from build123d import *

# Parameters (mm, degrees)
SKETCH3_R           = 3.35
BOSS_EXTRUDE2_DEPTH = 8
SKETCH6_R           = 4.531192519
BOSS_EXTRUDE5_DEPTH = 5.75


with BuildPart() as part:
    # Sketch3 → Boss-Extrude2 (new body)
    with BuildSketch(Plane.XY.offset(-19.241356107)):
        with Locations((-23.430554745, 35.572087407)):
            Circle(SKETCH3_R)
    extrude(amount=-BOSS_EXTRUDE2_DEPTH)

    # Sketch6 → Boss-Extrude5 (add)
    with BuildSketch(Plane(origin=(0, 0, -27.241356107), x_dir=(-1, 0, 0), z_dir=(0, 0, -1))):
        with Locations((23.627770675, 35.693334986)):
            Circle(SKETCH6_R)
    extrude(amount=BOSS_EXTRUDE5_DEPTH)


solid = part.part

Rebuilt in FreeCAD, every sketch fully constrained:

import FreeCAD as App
import Part
import Sketcher

V = App.Vector
Q = App.Units.Quantity

doc = App.newDocument("Part")
body = doc.addObject("PartDesign::Body", "Body")

sketch1 = body.newObject("Sketcher::SketchObject", "Sketch")
sketch1.AttachmentSupport = (doc.getObject("XY_Plane"), [""])
sketch1.MapMode = "FlatFace"
sketch1.AttachmentOffset = App.Placement(V(0, 0, -19.241356), App.Rotation())
sketch1.addGeometry(Part.Circle(V(-23.4, 35.6, 0), V(0, 0, 1), 3.4), False)
sketch1.addConstraint([
    Sketcher.Constraint("Diameter", 0, Q("6.7 mm")),
    Sketcher.Constraint("DistanceX", 0, 3, -1, 1, Q("23.430555 mm")),
    Sketcher.Constraint("DistanceY", -1, 1, 0, 3, Q("35.572087 mm")),
])
pad1 = body.newObject("PartDesign::Pad", "Pad")
pad1.Profile = sketch1
pad1.Length = 8
pad1.Reversed = True

sketch2 = body.newObject("Sketcher::SketchObject", "Sketch001")
sketch2.AttachmentSupport = (doc.getObject("XY_Plane"), [""])
sketch2.MapMode = "FlatFace"
sketch2.AttachmentOffset = App.Placement(V(0, 0, -27.241356), App.Rotation())
sketch2.addGeometry(Part.Circle(V(-23.6, 35.7, 0), V(0, 0, 1), 4.5), False)
sketch2.addConstraint([
    Sketcher.Constraint("Diameter", 0, Q("9.062385 mm")),
    Sketcher.Constraint("DistanceX", 0, 3, -1, 1, Q("23.627771 mm")),
    Sketcher.Constraint("DistanceY", -1, 1, 0, 3, Q("35.693335 mm")),
])
pad2 = body.newObject("PartDesign::Pad", "Pad001")
pad2.Profile = sketch2
pad2.Length = 5.75
pad2.Reversed = True

doc.recompute()
